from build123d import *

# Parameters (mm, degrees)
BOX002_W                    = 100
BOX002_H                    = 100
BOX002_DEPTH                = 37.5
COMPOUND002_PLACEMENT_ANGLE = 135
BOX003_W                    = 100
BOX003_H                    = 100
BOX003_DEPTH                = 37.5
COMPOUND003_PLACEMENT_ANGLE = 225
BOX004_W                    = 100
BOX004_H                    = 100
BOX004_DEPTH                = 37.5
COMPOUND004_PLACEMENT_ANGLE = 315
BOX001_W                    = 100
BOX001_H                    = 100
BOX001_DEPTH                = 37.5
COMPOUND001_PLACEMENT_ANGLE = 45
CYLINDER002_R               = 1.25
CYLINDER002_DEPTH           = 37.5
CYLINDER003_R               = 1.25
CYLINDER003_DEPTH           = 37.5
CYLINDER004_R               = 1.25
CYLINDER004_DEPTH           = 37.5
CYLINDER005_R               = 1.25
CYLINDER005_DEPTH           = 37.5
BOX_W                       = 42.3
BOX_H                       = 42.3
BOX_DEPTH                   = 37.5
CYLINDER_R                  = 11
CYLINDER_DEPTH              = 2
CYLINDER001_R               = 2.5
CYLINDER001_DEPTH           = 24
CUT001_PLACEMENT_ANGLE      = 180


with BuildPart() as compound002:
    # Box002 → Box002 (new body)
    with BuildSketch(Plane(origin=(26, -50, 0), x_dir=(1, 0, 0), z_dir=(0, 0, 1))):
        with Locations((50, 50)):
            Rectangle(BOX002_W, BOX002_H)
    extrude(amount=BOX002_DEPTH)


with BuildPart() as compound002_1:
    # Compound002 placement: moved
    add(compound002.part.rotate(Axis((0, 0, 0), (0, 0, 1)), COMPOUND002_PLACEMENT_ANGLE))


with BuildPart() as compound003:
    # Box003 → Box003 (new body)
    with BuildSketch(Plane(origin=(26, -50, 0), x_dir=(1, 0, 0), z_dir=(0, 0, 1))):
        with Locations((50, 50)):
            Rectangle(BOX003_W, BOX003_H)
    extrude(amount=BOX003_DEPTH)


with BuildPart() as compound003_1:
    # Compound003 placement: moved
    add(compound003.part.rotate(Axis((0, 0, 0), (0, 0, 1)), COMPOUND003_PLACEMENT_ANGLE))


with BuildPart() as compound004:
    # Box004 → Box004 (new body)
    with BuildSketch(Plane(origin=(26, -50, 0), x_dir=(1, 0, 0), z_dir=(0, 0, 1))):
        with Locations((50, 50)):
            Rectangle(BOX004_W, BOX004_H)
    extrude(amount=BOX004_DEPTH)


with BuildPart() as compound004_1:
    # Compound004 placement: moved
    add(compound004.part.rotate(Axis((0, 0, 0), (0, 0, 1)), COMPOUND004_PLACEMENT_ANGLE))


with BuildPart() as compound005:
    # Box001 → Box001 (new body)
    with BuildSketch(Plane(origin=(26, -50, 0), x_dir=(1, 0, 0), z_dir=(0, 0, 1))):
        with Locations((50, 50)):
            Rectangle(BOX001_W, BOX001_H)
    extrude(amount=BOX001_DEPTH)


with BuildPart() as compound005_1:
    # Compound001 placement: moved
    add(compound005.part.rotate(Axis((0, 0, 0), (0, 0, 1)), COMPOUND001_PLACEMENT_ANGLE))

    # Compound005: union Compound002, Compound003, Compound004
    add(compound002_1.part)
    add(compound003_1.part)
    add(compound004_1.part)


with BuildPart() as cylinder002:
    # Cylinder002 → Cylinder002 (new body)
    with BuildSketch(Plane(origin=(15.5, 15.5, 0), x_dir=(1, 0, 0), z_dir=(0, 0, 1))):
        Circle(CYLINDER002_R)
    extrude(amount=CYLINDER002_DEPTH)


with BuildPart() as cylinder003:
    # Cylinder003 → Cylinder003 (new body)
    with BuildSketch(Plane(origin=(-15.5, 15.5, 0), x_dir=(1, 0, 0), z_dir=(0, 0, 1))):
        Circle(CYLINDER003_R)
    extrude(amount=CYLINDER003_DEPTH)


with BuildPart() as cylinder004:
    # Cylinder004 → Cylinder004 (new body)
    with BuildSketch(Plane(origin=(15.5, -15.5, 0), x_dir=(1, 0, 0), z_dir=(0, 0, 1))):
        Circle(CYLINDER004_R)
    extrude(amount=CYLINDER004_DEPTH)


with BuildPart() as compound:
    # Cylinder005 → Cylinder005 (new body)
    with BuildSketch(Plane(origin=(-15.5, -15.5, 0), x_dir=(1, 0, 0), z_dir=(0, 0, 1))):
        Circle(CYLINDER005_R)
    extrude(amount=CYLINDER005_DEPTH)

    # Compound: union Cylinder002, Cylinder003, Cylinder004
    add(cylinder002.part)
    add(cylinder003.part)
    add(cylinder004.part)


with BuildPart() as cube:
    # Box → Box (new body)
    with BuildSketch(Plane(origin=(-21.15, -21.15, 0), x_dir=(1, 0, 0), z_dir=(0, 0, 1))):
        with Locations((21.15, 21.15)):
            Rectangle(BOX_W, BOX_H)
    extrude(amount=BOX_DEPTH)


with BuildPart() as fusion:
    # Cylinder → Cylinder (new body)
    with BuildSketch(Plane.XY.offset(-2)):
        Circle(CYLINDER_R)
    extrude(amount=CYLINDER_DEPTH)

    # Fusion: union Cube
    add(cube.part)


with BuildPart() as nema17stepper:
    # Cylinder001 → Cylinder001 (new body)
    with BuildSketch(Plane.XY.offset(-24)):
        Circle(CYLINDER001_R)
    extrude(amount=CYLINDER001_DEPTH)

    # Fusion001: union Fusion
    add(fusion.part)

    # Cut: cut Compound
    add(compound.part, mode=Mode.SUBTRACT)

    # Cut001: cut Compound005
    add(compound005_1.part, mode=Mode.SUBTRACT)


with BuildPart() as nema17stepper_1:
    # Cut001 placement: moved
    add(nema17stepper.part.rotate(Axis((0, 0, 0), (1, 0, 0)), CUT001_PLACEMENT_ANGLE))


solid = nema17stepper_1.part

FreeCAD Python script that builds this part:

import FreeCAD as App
import Part
import Sketcher

V = App.Vector
Q = App.Units.Quantity

doc = App.newDocument("Part")
body = doc.addObject("PartDesign::Body", "Body")

# Sketch on XY plane
sketch1 = doc.addObject("Sketcher::SketchObject", "Sketch")
body.addObject(sketch1)
sketch1.AttachmentSupport = (doc.XY_Plane, [""])
sketch1.MapMode = "FlatFace"
sketch1.addGeometry([
    Part.LineSegment(V(26, 50, 0), V(26, -50, 0)),
    Part.LineSegment(V(26, -50, 0), V(126, -50, 0)),
    Part.LineSegment(V(126, -50, 0), V(126, 50, 0)),
    Part.LineSegment(V(126, 50, 0), V(26, 50, 0)),
], False)
sketch1.addConstraint([
    Sketcher.Constraint("Coincident", 0, 2, 1, 1),
    Sketcher.Constraint("Coincident", 1, 2, 2, 1),
    Sketcher.Constraint("Coincident", 2, 2, 3, 1),
    Sketcher.Constraint("Coincident", 3, 2, 0, 1),
    Sketcher.Constraint("Vertical", 0),
    Sketcher.Constraint("Horizontal", 1),
    Sketcher.Constraint("Vertical", 2),
    Sketcher.Constraint("Horizontal", 3),
    Sketcher.Constraint("Equal", 3, 0),
    Sketcher.Constraint("DistanceX", 1, 1, 1, 2, Q("100 mm")),
    Sketcher.Constraint("DistanceX", -1, 1, 0, 2, Q("26 mm")),
    Sketcher.Constraint("DistanceY", 0, 2, -1, 1, Q("50 mm")),
])
pad1 = doc.addObject("PartDesign::Pad", "Pad")
body.addObject(pad1)
pad1.Profile = sketch1
pad1.Length = 37.5
body2 = doc.addObject("PartDesign::Body", "Body001")
doc.recompute()

body.Placement = App.Placement(V(0, 0, 0), App.Rotation(V(0, 0, 1), 135))
boolean = doc.addObject("PartDesign::Boolean", "Boolean")
body2.addObject(boolean)
boolean.Type = "Fuse"
boolean.addObjects([body])
body3 = doc.addObject("PartDesign::Body", "Body002")

# Sketch on XY plane
sketch2 = doc.addObject("Sketcher::SketchObject", "Sketch001")
body3.addObject(sketch2)
sketch2.AttachmentSupport = (doc.getObject("XY_Plane002"), [""])
sketch2.MapMode = "FlatFace"
sketch2.addGeometry([
    Part.LineSegment(V(26, 50, 0), V(26, -50, 0)),
    Part.LineSegment(V(26, -50, 0), V(126, -50, 0)),
    Part.LineSegment(V(126, -50, 0), V(126, 50, 0)),
    Part.LineSegment(V(126, 50, 0), V(26, 50, 0)),
], False)
sketch2.addConstraint([
    Sketcher.Constraint("Coincident", 0, 2, 1, 1),
    Sketcher.Constraint("Coincident", 1, 2, 2, 1),
    Sketcher.Constraint("Coincident", 2, 2, 3, 1),
    Sketcher.Constraint("Coincident", 3, 2, 0, 1),
    Sketcher.Constraint("Vertical", 0),
    Sketcher.Constraint("Horizontal", 1),
    Sketcher.Constraint("Vertical", 2),
    Sketcher.Constraint("Horizontal", 3),
    Sketcher.Constraint("Equal", 3, 0),
    Sketcher.Constraint("DistanceX", 1, 1, 1, 2, Q("100 mm")),
    Sketcher.Constraint("DistanceX", -1, 1, 0, 2, Q("26 mm")),
    Sketcher.Constraint("DistanceY", 0, 2, -1, 1, Q("50 mm")),
])
pad2 = doc.addObject("PartDesign::Pad", "Pad001")
body3.addObject(pad2)
pad2.Profile = sketch2
pad2.Length = 37.5
body4 = doc.addObject("PartDesign::Body", "Body003")
doc.recompute()

body3.Placement = App.Placement(V(0, 0, 0), App.Rotation(V(0, 0, 1), 225))
boolean2 = doc.addObject("PartDesign::Boolean", "Boolean001")
body4.addObject(boolean2)
boolean2.Type = "Fuse"
boolean2.addObjects([body3])
body5 = doc.addObject("PartDesign::Body", "Body004")

# Sketch on XY plane
sketch3 = doc.addObject("Sketcher::SketchObject", "Sketch002")
body5.addObject(sketch3)
sketch3.AttachmentSupport = (doc.getObject("XY_Plane004"), [""])
sketch3.MapMode = "FlatFace"
sketch3.addGeometry([
    Part.LineSegment(V(26, 50, 0), V(26, -50, 0)),
    Part.LineSegment(V(26, -50, 0), V(126, -50, 0)),
    Part.LineSegment(V(126, -50, 0), V(126, 50, 0)),
    Part.LineSegment(V(126, 50, 0), V(26, 50, 0)),
], False)
sketch3.addConstraint([
    Sketcher.Constraint("Coincident", 0, 2, 1, 1),
    Sketcher.Constraint("Coincident", 1, 2, 2, 1),
    Sketcher.Constraint("Coincident", 2, 2, 3, 1),
    Sketcher.Constraint("Coincident", 3, 2, 0, 1),
    Sketcher.Constraint("Vertical", 0),
    Sketcher.Constraint("Horizontal", 1),
    Sketcher.Constraint("Vertical", 2),
    Sketcher.Constraint("Horizontal", 3),
    Sketcher.Constraint("Equal", 3, 0),
    Sketcher.Constraint("DistanceX", 1, 1, 1, 2, Q("100 mm")),
    Sketcher.Constraint("DistanceX", -1, 1, 0, 2, Q("26 mm")),
    Sketcher.Constraint("DistanceY", 0, 2, -1, 1, Q("50 mm")),
])
pad3 = doc.addObject("PartDesign::Pad", "Pad002")
body5.addObject(pad3)
pad3.Profile = sketch3
pad3.Length = 37.5
body6 = doc.addObject("PartDesign::Body", "Body005")
doc.recompute()

body5.Placement = App.Placement(V(0, 0, 0), App.Rotation(V(0, 0, 1), 315))
boolean3 = doc.addObject("PartDesign::Boolean", "Boolean002")
body6.addObject(boolean3)
boolean3.Type = "Fuse"
boolean3.addObjects([body5])
body7 = doc.addObject("PartDesign::Body", "Body006")

# Sketch on XY plane
sketch4 = doc.addObject("Sketcher::SketchObject", "Sketch003")
body7.addObject(sketch4)
sketch4.AttachmentSupport = (doc.getObject("XY_Plane006"), [""])
sketch4.MapMode = "FlatFace"
sketch4.addGeometry([
    Part.LineSegment(V(26, 50, 0), V(26, -50, 0)),
    Part.LineSegment(V(26, -50, 0), V(126, -50, 0)),
    Part.LineSegment(V(126, -50, 0), V(126, 50, 0)),
    Part.LineSegment(V(126, 50, 0), V(26, 50, 0)),
], False)
sketch4.addConstraint([
    Sketcher.Constraint("Coincident", 0, 2, 1, 1),
    Sketcher.Constraint("Coincident", 1, 2, 2, 1),
    Sketcher.Constraint("Coincident", 2, 2, 3, 1),
    Sketcher.Constraint("Coincident", 3, 2, 0, 1),
    Sketcher.Constraint("Vertical", 0),
    Sketcher.Constraint("Horizontal", 1),
    Sketcher.Constraint("Vertical", 2),
    Sketcher.Constraint("Horizontal", 3),
    Sketcher.Constraint("Equal", 3, 0),
    Sketcher.Constraint("DistanceX", 1, 1, 1, 2, Q("100 mm")),
    Sketcher.Constraint("DistanceX", -1, 1, 0, 2, Q("26 mm")),
    Sketcher.Constraint("DistanceY", 0, 2, -1, 1, Q("50 mm")),
])
pad4 = doc.addObject("PartDesign::Pad", "Pad003")
body7.addObject(pad4)
pad4.Profile = sketch4
pad4.Length = 37.5
body8 = doc.addObject("PartDesign::Body", "Body007")
doc.recompute()

body7.Placement = App.Placement(V(0, 0, 0), App.Rotation(V(0, 0, 1), 45))
boolean4 = doc.addObject("PartDesign::Boolean", "Boolean003")
body8.addObject(boolean4)
boolean4.Type = "Fuse"
boolean4.addObjects([body7])
doc.recompute()

boolean5 = doc.addObject("PartDesign::Boolean", "Boolean004")
body8.addObject(boolean5)
boolean5.Type = "Fuse"
boolean5.addObjects([body2])
doc.recompute()

boolean6 = doc.addObject("PartDesign::Boolean", "Boolean005")
body8.addObject(boolean6)
boolean6.Type = "Fuse"
boolean6.addObjects([body4])
doc.recompute()

boolean7 = doc.addObject("PartDesign::Boolean", "Boolean006")
body8.addObject(boolean7)
boolean7.Type = "Fuse"
boolean7.addObjects([body6])
body9 = doc.addObject("PartDesign::Body", "Body008")

# Sketch on XY plane
sketch5 = doc.addObject("Sketcher::SketchObject", "Sketch004")
body9.addObject(sketch5)
sketch5.AttachmentSupport = (doc.getObject("XY_Plane008"), [""])
sketch5.MapMode = "FlatFace"
sketch5.addGeometry(Part.Circle(V(15.5, 15.5, 0), V(0, 0, 1), 1.2), False)
sketch5.addConstraint([
    Sketcher.Constraint("Diameter", 0, Q("2.5 mm")),
    Sketcher.Constraint("DistanceX", -1, 1, 0, 3, Q("15.5 mm")),
    Sketcher.Constraint("DistanceY", -1, 1, 0, 3, Q("15.5 mm")),
])
pad5 = doc.addObject("PartDesign::Pad", "Pad004")
body9.addObject(pad5)
pad5.Profile = sketch5
pad5.Length = 37.5
body10 = doc.addObject("PartDesign::Body", "Body009")

# Sketch on XY plane
sketch6 = doc.addObject("Sketcher::SketchObject", "Sketch005")
body10.addObject(sketch6)
sketch6.AttachmentSupport = (doc.getObject("XY_Plane009"), [""])
sketch6.MapMode = "FlatFace"
sketch6.addGeometry(Part.Circle(V(-15.5, 15.5, 0), V(0, 0, 1), 1.2), False)
sketch6.addConstraint([
    Sketcher.Constraint("Diameter", 0, Q("2.5 mm")),
    Sketcher.Constraint("DistanceX", 0, 3, -1, 1, Q("15.5 mm")),
    Sketcher.Constraint("DistanceY", -1, 1, 0, 3, Q("15.5 mm")),
])
pad6 = doc.addObject("PartDesign::Pad", "Pad005")
body10.addObject(pad6)
pad6.Profile = sketch6
pad6.Length = 37.5
body11 = doc.addObject("PartDesign::Body", "Body010")

# Sketch on XY plane
sketch7 = doc.addObject("Sketcher::SketchObject", "Sketch006")
body11.addObject(sketch7)
sketch7.AttachmentSupport = (doc.getObject("XY_Plane010"), [""])
sketch7.MapMode = "FlatFace"
sketch7.addGeometry(Part.Circle(V(15.5, -15.5, 0), V(0, 0, 1), 1.2), False)
sketch7.addConstraint([
    Sketcher.Constraint("Diameter", 0, Q("2.5 mm")),
    Sketcher.Constraint("DistanceX", -1, 1, 0, 3, Q("15.5 mm")),
    Sketcher.Constraint("DistanceY", 0, 3, -1, 1, Q("15.5 mm")),
])
pad7 = doc.addObject("PartDesign::Pad", "Pad006")
body11.addObject(pad7)
pad7.Profile = sketch7
pad7.Length = 37.5
body12 = doc.addObject("PartDesign::Body", "Body011")
body12.AllowCompound = True

# Sketch on XY plane
sketch8 = doc.addObject("Sketcher::SketchObject", "Sketch007")
body12.addObject(sketch8)
sketch8.AttachmentSupport = (doc.getObject("XY_Plane011"), [""])
sketch8.MapMode = "FlatFace"
sketch8.addGeometry(Part.Circle(V(-15.5, -15.5, 0), V(0, 0, 1), 1.2), False)
sketch8.addConstraint([
    Sketcher.Constraint("Diameter", 0, Q("2.5 mm")),
    Sketcher.Constraint("DistanceX", 0, 3, -1, 1, Q("15.5 mm")),
    Sketcher.Constraint("DistanceY", 0, 3, -1, 1, Q("15.5 mm")),
])
pad8 = doc.addObject("PartDesign::Pad", "Pad007")
body12.addObject(pad8)
pad8.Profile = sketch8
pad8.Length = 37.5
doc.recompute()

boolean8 = doc.addObject("PartDesign::Boolean", "Boolean007")
body12.addObject(boolean8)
boolean8.Type = "Fuse"
boolean8.addObjects([body9])
doc.recompute()

boolean9 = doc.addObject("PartDesign::Boolean", "Boolean008")
body12.addObject(boolean9)
boolean9.Type = "Fuse"
boolean9.addObjects([body10])
doc.recompute()

boolean10 = doc.addObject("PartDesign::Boolean", "Boolean009")
body12.addObject(boolean10)
boolean10.Type = "Fuse"
boolean10.addObjects([body11])
body13 = doc.addObject("PartDesign::Body", "Body012")

# Sketch on XY plane
sketch9 = doc.addObject("Sketcher::SketchObject", "Sketch008")
body13.addObject(sketch9)
sketch9.AttachmentSupport = (doc.getObject("XY_Plane012"), [""])
sketch9.MapMode = "FlatFace"
sketch9.addGeometry([
    Part.LineSegment(V(-21, 21, 0), V(-21, -21, 0)),
    Part.LineSegment(V(-21, -21, 0), V(21, -21, 0)),
    Part.LineSegment(V(21, -21, 0), V(21, 21, 0)),
    Part.LineSegment(V(21, 21, 0), V(-21, 21, 0)),
], False)
sketch9.addConstraint([
    Sketcher.Constraint("Coincident", 0, 2, 1, 1),
    Sketcher.Constraint("Coincident", 1, 2, 2, 1),
    Sketcher.Constraint("Coincident", 2, 2, 3, 1),
    Sketcher.Constraint("Coincident", 3, 2, 0, 1),
    Sketcher.Constraint("Vertical", 0),
    Sketcher.Constraint("Horizontal", 1),
    Sketcher.Constraint("Vertical", 2),
    Sketcher.Constraint("Horizontal", 3),
    Sketcher.Constraint("Symmetric", 0, 2, 2, 2, -1, 1),
    Sketcher.Constraint("Equal", 3, 0),
    Sketcher.Constraint("DistanceX", 1, 1, 1, 2, Q("42.3 mm")),
])
pad9 = doc.addObject("PartDesign::Pad", "Pad008")
body13.addObject(pad9)
pad9.Profile = sketch9
pad9.Length = 37.5
body14 = doc.addObject("PartDesign::Body", "Body013")

# Sketch on XY plane
sketch10 = doc.addObject("Sketcher::SketchObject", "Sketch009")
body14.addObject(sketch10)
sketch10.AttachmentSupport = (doc.getObject("XY_Plane013"), [""])
sketch10.MapMode = "FlatFace"
sketch10.AttachmentOffset = App.Placement(V(0, 0, -2), App.Rotation())
sketch10.addGeometry(Part.Circle(V(0, 0, 0), V(0, 0, 1), 11), False)
sketch10.addConstraint([
    Sketcher.Constraint("Coincident", 0, 3, -1, 1),
    Sketcher.Constraint("Diameter", 0, Q("22 mm")),
])
pad10 = doc.addObject("PartDesign::Pad", "Pad009")
body14.addObject(pad10)
pad10.Profile = sketch10
pad10.Length = 2
doc.recompute()

boolean11 = doc.addObject("PartDesign::Boolean", "Boolean010")
body14.addObject(boolean11)
boolean11.Type = "Fuse"
boolean11.addObjects([body13])
body15 = doc.addObject("PartDesign::Body", "Body014")

# Sketch on XY plane
sketch11 = doc.addObject("Sketcher::SketchObject", "Sketch010")
body15.addObject(sketch11)
sketch11.AttachmentSupport = (doc.getObject("XY_Plane014"), [""])
sketch11.MapMode = "FlatFace"
sketch11.AttachmentOffset = App.Placement(V(0, 0, -24), App.Rotation())
sketch11.addGeometry(Part.Circle(V(0, 0, 0), V(0, 0, 1), 2.5), False)
sketch11.addConstraint([
    Sketcher.Constraint("Coincident", 0, 3, -1, 1),
    Sketcher.Constraint("Diameter", 0, Q("5 mm")),
])
pad11 = doc.addObject("PartDesign::Pad", "Pad010")
body15.addObject(pad11)
pad11.Profile = sketch11
pad11.Length = 24
doc.recompute()

boolean12 = doc.addObject("PartDesign::Boolean", "Boolean011")
body15.addObject(boolean12)
boolean12.Type = "Fuse"
boolean12.addObjects([body14])
doc.recompute()

boolean13 = doc.addObject("PartDesign::Boolean", "Boolean012")
body15.addObject(boolean13)
boolean13.Type = "Cut"
boolean13.addObjects([body12])
doc.recompute()

boolean14 = doc.addObject("PartDesign::Boolean", "Boolean013")
body15.addObject(boolean14)
boolean14.Type = "Cut"
boolean14.addObjects([body8])
body16 = doc.addObject("PartDesign::Body", "Body015")
doc.recompute()

body15.Placement = App.Placement(V(0, 0, 0), App.Rotation(V(1, 0, 0), 180))
boolean15 = doc.addObject("PartDesign::Boolean", "Boolean014")
body16.addObject(boolean15)
boolean15.Type = "Fuse"
boolean15.addObjects([body15])

doc.recompute()
